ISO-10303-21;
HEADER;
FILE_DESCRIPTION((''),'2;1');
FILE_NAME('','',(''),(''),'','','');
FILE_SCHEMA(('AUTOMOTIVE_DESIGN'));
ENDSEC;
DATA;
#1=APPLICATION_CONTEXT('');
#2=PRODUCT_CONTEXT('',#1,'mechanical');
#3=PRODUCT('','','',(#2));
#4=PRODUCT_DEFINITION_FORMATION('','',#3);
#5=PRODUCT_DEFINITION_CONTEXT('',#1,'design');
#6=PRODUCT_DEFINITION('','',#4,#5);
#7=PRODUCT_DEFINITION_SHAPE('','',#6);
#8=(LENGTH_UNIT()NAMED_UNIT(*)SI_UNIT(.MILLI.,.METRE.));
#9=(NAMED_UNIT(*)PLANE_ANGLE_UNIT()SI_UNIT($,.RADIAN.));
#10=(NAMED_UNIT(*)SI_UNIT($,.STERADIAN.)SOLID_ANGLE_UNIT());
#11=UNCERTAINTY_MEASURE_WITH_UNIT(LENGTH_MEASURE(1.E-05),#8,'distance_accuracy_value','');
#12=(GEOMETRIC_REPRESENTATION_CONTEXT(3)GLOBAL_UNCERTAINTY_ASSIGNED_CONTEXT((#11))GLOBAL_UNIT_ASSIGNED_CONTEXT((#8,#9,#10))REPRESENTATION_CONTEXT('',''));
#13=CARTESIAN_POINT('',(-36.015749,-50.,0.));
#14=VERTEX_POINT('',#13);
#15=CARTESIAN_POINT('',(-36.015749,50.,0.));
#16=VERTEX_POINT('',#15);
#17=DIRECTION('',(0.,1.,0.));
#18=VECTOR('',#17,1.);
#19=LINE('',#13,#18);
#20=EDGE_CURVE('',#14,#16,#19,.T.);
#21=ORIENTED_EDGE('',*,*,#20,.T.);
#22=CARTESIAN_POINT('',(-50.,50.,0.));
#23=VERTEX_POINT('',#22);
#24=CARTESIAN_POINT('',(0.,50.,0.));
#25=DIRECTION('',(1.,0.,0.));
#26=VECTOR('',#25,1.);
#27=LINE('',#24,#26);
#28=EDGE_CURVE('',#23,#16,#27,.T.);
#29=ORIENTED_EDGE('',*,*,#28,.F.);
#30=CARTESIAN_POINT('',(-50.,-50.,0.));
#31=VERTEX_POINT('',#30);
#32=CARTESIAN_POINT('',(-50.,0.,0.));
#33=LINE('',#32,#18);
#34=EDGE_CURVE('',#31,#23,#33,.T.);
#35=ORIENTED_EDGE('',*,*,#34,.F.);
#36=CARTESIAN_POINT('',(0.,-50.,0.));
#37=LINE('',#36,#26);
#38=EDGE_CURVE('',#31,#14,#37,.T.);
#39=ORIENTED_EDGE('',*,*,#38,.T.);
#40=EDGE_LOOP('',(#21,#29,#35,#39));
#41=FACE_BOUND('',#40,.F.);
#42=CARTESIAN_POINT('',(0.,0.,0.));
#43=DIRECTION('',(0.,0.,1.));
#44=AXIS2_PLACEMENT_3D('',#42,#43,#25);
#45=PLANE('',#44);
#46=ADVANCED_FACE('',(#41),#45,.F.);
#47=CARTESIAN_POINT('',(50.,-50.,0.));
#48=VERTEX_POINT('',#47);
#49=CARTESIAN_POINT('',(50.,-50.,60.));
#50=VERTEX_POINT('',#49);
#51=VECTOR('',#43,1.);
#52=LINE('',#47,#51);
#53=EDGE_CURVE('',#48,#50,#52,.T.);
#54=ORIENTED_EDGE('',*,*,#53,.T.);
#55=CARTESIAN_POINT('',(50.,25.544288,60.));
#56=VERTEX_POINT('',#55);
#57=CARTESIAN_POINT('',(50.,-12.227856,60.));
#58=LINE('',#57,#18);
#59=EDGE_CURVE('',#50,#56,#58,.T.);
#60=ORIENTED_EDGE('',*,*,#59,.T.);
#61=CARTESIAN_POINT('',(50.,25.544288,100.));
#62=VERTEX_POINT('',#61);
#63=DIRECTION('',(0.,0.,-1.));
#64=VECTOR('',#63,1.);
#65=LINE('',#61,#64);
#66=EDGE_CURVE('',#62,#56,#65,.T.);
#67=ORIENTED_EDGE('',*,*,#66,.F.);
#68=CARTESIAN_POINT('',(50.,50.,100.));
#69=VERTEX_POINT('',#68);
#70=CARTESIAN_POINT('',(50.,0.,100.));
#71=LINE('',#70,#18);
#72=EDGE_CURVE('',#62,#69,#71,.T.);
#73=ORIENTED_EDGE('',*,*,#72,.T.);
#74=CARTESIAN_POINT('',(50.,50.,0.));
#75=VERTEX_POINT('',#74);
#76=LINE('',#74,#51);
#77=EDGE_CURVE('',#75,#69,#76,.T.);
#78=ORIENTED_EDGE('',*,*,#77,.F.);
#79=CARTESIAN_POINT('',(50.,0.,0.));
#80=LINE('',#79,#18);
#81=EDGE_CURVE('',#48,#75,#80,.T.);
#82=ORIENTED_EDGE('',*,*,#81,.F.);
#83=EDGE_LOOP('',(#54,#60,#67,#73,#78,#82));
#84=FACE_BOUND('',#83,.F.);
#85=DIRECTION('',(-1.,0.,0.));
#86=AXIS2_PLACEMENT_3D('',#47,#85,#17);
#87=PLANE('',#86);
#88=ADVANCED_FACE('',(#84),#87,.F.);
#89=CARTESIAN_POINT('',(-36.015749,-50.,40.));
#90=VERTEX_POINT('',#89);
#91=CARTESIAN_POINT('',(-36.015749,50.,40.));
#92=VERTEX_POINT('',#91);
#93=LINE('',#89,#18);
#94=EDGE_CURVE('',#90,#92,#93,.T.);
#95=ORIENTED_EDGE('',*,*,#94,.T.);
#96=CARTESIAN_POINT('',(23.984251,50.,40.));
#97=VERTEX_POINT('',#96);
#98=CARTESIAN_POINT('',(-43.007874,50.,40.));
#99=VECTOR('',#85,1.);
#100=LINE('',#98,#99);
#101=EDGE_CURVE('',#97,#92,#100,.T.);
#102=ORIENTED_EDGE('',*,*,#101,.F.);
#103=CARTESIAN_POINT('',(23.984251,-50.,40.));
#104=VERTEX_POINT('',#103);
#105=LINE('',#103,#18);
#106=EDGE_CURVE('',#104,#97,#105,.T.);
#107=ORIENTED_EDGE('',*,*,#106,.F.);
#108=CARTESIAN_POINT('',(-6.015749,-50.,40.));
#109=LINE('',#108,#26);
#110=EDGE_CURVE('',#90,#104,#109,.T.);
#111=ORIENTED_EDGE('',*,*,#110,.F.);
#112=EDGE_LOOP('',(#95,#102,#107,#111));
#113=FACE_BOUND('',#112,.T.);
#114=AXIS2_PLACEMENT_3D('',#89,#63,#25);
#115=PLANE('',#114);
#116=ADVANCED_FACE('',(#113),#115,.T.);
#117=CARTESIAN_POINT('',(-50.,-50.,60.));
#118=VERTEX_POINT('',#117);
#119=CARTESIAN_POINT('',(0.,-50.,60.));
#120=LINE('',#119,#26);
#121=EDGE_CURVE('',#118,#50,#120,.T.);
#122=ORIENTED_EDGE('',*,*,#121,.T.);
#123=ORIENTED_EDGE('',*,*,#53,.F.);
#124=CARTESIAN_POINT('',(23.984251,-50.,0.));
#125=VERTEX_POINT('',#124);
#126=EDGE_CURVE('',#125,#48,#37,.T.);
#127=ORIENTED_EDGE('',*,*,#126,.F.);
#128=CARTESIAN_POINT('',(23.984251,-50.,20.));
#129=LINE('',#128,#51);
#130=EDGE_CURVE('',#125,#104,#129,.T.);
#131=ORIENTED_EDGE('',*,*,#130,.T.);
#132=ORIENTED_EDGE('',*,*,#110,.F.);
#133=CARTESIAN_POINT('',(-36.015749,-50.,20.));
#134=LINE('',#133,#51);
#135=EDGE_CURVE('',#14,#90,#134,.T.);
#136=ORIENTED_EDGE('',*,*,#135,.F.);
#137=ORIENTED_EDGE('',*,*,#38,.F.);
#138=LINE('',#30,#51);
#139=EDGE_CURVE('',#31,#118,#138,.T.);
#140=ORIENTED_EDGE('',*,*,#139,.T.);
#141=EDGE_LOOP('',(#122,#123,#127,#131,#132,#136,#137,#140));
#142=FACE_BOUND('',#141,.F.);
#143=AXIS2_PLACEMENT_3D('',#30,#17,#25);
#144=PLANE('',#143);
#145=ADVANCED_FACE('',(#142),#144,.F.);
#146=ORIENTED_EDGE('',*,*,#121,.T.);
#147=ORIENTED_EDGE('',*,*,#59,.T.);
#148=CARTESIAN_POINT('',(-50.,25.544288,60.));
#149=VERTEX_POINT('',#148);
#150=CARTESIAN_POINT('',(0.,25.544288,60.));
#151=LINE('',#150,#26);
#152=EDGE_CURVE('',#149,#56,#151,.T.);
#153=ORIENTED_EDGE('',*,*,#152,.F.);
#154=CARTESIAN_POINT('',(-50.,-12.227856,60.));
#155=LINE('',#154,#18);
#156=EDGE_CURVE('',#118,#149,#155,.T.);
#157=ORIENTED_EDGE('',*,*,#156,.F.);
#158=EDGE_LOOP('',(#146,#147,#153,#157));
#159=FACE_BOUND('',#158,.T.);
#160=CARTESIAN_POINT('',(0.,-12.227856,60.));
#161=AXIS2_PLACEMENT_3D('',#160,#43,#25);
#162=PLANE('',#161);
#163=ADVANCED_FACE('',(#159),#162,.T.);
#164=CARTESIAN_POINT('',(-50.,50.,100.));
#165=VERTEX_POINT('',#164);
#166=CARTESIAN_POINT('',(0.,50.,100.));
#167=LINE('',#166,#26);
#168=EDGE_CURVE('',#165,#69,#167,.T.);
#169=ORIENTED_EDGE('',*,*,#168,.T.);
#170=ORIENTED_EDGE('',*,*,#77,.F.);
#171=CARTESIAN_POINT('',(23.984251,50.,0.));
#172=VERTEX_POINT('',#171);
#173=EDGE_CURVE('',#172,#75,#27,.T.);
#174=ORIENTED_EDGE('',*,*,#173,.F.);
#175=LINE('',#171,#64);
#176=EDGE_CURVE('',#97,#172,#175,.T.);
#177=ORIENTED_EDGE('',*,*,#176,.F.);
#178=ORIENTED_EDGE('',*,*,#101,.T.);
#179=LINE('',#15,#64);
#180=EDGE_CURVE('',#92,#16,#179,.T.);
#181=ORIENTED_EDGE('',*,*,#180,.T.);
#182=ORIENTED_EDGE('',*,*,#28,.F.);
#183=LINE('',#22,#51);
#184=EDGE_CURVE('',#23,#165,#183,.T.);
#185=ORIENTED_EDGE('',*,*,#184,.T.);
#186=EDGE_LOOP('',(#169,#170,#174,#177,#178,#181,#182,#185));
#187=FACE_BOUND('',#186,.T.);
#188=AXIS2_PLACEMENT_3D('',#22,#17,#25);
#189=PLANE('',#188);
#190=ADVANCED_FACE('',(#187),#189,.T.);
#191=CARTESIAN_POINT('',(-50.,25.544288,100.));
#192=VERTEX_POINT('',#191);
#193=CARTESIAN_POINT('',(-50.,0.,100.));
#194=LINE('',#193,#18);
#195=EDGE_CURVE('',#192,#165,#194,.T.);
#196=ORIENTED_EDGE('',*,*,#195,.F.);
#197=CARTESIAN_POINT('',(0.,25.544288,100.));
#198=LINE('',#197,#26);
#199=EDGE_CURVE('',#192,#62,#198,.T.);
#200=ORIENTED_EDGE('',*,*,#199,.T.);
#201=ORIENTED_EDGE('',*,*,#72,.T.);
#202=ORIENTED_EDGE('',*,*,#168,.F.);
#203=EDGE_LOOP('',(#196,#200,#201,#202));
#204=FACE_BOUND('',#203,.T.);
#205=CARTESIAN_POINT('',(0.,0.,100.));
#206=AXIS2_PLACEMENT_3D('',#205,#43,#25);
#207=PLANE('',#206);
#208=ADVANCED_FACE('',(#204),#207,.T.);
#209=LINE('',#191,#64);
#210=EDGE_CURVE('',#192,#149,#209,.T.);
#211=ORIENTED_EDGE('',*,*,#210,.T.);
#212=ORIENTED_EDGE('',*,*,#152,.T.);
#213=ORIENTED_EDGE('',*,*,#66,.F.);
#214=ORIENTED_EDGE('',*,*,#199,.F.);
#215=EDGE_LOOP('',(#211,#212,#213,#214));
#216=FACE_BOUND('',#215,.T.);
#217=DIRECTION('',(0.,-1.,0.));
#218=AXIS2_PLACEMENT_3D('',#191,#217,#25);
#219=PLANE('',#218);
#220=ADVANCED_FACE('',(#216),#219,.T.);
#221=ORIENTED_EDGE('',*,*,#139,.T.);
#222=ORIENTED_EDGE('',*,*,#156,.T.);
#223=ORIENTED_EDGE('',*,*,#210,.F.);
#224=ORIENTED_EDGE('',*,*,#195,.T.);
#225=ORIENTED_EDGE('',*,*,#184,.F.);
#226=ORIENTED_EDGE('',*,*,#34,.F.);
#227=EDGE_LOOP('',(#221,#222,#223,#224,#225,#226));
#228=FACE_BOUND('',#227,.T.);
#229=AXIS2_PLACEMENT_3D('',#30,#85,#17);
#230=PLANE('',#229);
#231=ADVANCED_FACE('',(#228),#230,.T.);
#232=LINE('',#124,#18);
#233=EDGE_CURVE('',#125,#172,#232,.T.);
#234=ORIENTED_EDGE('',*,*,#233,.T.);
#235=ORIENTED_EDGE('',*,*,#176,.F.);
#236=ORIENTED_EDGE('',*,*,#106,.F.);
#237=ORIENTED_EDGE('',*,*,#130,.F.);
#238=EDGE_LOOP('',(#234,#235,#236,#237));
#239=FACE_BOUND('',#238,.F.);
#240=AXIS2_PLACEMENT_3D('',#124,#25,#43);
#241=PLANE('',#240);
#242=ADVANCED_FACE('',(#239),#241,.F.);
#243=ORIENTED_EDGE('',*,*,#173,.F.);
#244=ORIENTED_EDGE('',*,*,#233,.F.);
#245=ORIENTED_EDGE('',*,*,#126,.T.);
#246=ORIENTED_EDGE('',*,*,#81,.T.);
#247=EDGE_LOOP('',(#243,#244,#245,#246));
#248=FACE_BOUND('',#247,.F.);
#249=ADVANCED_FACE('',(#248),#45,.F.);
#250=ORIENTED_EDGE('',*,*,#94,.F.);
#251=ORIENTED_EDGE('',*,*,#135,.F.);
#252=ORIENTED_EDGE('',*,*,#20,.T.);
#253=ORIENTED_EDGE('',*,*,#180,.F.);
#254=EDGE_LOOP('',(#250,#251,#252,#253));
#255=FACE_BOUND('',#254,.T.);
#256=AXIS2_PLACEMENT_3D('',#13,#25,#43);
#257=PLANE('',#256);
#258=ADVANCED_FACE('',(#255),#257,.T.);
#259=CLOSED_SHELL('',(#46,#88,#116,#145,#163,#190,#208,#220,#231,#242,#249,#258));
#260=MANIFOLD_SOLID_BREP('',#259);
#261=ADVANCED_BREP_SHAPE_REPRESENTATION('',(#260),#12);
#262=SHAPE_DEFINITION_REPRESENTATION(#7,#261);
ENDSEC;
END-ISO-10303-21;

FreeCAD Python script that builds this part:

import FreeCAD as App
import Part
import Sketcher

doc = App.newDocument("Part")
body = doc.addObject("PartDesign::Body", "Body")

# Sketch on XY plane
sketch1 = body.newObject("Sketcher::SketchObject", "Sketch")
sketch1.AttachmentSupport = (doc.getObject("XY_Plane"), [""])
sketch1.MapMode = "FlatFace"
sketch1.addGeometry(Part.LineSegment(App.Vector(-50, 50, 0), App.Vector(-50, -50, 0)), False)
sketch1.addGeometry(Part.LineSegment(App.Vector(-50, -50, 0), App.Vector(50, -50, 0)), False)
sketch1.addGeometry(Part.LineSegment(App.Vector(50, -50, 0), App.Vector(50, 50, 0)), False)
sketch1.addGeometry(Part.LineSegment(App.Vector(50, 50, 0), App.Vector(-50, 50, 0)), False)
sketch1.addConstraint(Sketcher.Constraint("Coincident", 0, 2, 1, 1))
sketch1.addConstraint(Sketcher.Constraint("Coincident", 1, 2, 2, 1))
sketch1.addConstraint(Sketcher.Constraint("Coincident", 2, 2, 3, 1))
sketch1.addConstraint(Sketcher.Constraint("Coincident", 3, 2, 0, 1))
sketch1.addConstraint(Sketcher.Constraint("Vertical", 0))
sketch1.addConstraint(Sketcher.Constraint("Horizontal", 1))
sketch1.addConstraint(Sketcher.Constraint("Vertical", 2))
sketch1.addConstraint(Sketcher.Constraint("Horizontal", 3))
sketch1.addConstraint(Sketcher.Constraint("Symmetric", 0, 2, 2, 2, -1, 1))
sketch1.addConstraint(Sketcher.Constraint("Equal", 3, 0))
sketch1.addConstraint(Sketcher.Constraint("DistanceX", 1, 1, 1, 2, 100.0))
pad1 = body.newObject("PartDesign::Pad", "Pad")
pad1.Profile = sketch1
pad1.Length = 100

# Sketch on XY plane
sketch2 = body.newObject("Sketcher::SketchObject", "Sketch001")
sketch2.AttachmentSupport = (doc.getObject("XY_Plane"), [""])
sketch2.MapMode = "FlatFace"
sketch2.AttachmentOffset = App.Placement(App.Vector(0, 0, 100), App.Rotation())
sketch2.addGeometry(Part.LineSegment(App.Vector(-50, 26, 0), App.Vector(-50, -50, 0)), False)
sketch2.addGeometry(Part.LineSegment(App.Vector(-50, -50, 0), App.Vector(50, -50, 0)), False)
sketch2.addGeometry(Part.LineSegment(App.Vector(50, -50, 0), App.Vector(50, 26, 0)), False)
sketch2.addGeometry(Part.LineSegment(App.Vector(50, 26, 0), App.Vector(-50, 26, 0)), False)
sketch2.addConstraint(Sketcher.Constraint("Coincident", 0, 2, 1, 1))
sketch2.addConstraint(Sketcher.Constraint("Coincident", 1, 2, 2, 1))
sketch2.addConstraint(Sketcher.Constraint("Coincident", 2, 2, 3, 1))
sketch2.addConstraint(Sketcher.Constraint("Coincident", 3, 2, 0, 1))
sketch2.addConstraint(Sketcher.Constraint("Vertical", 0))
sketch2.addConstraint(Sketcher.Constraint("Horizontal", 1))
sketch2.addConstraint(Sketcher.Constraint("Vertical", 2))
sketch2.addConstraint(Sketcher.Constraint("Horizontal", 3))
sketch2.addConstraint(Sketcher.Constraint("DistanceX", 1, 1, 1, 2, 100.0))
sketch2.addConstraint(Sketcher.Constraint("DistanceX", 0, 2, -1, 1, 50.0))
sketch2.addConstraint(Sketcher.Constraint("DistanceY", 0, 2, -1, 1, 50.0))
sketch2.addConstraint(Sketcher.Constraint("DistanceY", 0, 2, 0, 1, 75.544288))
pocket1 = body.newObject("PartDesign::Pocket", "Pocket")
pocket1.Profile = sketch2
pocket1.Length = 40

# Sketch on XZ plane
sketch3 = body.newObject("Sketcher::SketchObject", "Sketch002")
sketch3.AttachmentSupport = (doc.getObject("XZ_Plane"), [""])
sketch3.MapMode = "FlatFace"
sketch3.AttachmentOffset = App.Placement(App.Vector(0, 0, 50), App.Rotation())
sketch3.addGeometry(Part.LineSegment(App.Vector(-36, 40, 0), App.Vector(-36, 0, 0)), False)
sketch3.addGeometry(Part.LineSegment(App.Vector(-36, 0, 0), App.Vector(24, 0, 0)), False)
sketch3.addGeometry(Part.LineSegment(App.Vector(24, 0, 0), App.Vector(24, 40, 0)), False)
sketch3.addGeometry(Part.LineSegment(App.Vector(24, 40, 0), App.Vector(-36, 40, 0)), False)
sketch3.addConstraint(Sketcher.Constraint("Coincident", 0, 2, 1, 1))
sketch3.addConstraint(Sketcher.Constraint("Coincident", 1, 2, 2, 1))
sketch3.addConstraint(Sketcher.Constraint("Coincident", 2, 2, 3, 1))
sketch3.addConstraint(Sketcher.Constraint("Coincident", 3, 2, 0, 1))
sketch3.addConstraint(Sketcher.Constraint("Vertical", 0))
sketch3.addConstraint(Sketcher.Constraint("Horizontal", 1))
sketch3.addConstraint(Sketcher.Constraint("Vertical", 2))
sketch3.addConstraint(Sketcher.Constraint("Horizontal", 3))
sketch3.addConstraint(Sketcher.Constraint("PointOnObject", 0, 2, -1))
sketch3.addConstraint(Sketcher.Constraint("DistanceX", 1, 1, 1, 2, 60.0))
sketch3.addConstraint(Sketcher.Constraint("DistanceY", 0, 2, 0, 1, 40.0))
sketch3.addConstraint(Sketcher.Constraint("DistanceX", 0, 2, -1, 1, 36.015749))
pocket2 = body.newObject("PartDesign::Pocket", "Pocket001")
pocket2.Profile = sketch3
pocket2.Type = "ThroughAll"

# Sketch on XZ plane
sketch4 = body.newObject("Sketcher::SketchObject", "Sketch003")
sketch4.AttachmentSupport = (doc.getObject("XZ_Plane"), [""])
sketch4.MapMode = "FlatFace"
sketch4.AttachmentOffset = App.Placement(App.Vector(0, 0, 50), App.Rotation())
sketch4.addGeometry(Part.LineSegment(App.Vector(-36, 40, 0), App.Vector(-36, 0, 0)), False)
sketch4.addGeometry(Part.LineSegment(App.Vector(-36, 0, 0), App.Vector(24, 0, 0)), False)
sketch4.addGeometry(Part.LineSegment(App.Vector(24, 0, 0), App.Vector(24, 40, 0)), False)
sketch4.addGeometry(Part.LineSegment(App.Vector(24, 40, 0), App.Vector(-36, 40, 0)), False)
sketch4.addConstraint(Sketcher.Constraint("Coincident", 0, 2, 1, 1))
sketch4.addConstraint(Sketcher.Constraint("Coincident", 1, 2, 2, 1))
sketch4.addConstraint(Sketcher.Constraint("Coincident", 2, 2, 3, 1))
sketch4.addConstraint(Sketcher.Constraint("Coincident", 3, 2, 0, 1))
sketch4.addConstraint(Sketcher.Constraint("Vertical", 0))
sketch4.addConstraint(Sketcher.Constraint("Horizontal", 1))
sketch4.addConstraint(Sketcher.Constraint("Vertical", 2))
sketch4.addConstraint(Sketcher.Constraint("Horizontal", 3))
sketch4.addConstraint(Sketcher.Constraint("PointOnObject", 0, 2, -1))
sketch4.addConstraint(Sketcher.Constraint("DistanceX", 1, 1, 1, 2, 60.0))
sketch4.addConstraint(Sketcher.Constraint("DistanceY", 0, 2, 0, 1, 40.0))
sketch4.addConstraint(Sketcher.Constraint("DistanceX", 0, 2, -1, 1, 36.015749))
pocket3 = body.newObject("PartDesign::Pocket", "Pocket002")
pocket3.Profile = sketch4
pocket3.Type = "ThroughAll"

doc.recompute()
